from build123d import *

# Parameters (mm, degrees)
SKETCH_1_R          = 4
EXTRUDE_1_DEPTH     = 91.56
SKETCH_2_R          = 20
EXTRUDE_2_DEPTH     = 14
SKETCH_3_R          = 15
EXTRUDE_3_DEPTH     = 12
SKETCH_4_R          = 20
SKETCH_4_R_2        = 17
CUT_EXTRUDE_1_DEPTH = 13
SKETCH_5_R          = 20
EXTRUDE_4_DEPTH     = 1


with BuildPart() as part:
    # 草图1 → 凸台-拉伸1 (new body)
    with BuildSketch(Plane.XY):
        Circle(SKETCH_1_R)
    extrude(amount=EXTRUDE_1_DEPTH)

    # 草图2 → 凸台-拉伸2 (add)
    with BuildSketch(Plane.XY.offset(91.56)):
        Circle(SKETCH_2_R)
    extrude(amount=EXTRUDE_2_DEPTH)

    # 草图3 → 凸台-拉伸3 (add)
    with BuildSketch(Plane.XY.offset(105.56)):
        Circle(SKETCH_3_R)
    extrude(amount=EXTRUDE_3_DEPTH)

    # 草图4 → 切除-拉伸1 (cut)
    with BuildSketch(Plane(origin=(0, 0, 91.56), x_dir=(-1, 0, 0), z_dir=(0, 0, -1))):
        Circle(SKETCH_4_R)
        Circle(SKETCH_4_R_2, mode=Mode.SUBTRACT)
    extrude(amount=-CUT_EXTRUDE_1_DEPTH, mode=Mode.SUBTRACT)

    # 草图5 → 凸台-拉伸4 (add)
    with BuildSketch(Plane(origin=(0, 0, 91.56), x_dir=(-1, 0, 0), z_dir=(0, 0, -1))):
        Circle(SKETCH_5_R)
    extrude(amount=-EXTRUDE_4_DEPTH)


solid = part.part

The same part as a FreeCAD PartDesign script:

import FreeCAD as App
import Part
import Sketcher

V = App.Vector
Q = App.Units.Quantity

doc = App.newDocument("Part")
body = doc.addObject("PartDesign::Body", "Body")

sketch1 = body.newObject("Sketcher::SketchObject", "Sketch")
sketch1.AttachmentSupport = (doc.getObject("XY_Plane"), [""])
sketch1.MapMode = "FlatFace"
sketch1.addGeometry(Part.Circle(V(0, 0, 0), V(0, 0, 1), 4), False)
sketch1.addConstraint([
    Sketcher.Constraint("Coincident", 0, 3, -1, 1),
    Sketcher.Constraint("Diameter", 0, Q("8 mm")),
])
pad1 = body.newObject("PartDesign::Pad", "Pad")
pad1.Profile = sketch1
pad1.Length = 91.56

sketch2 = body.newObject("Sketcher::SketchObject", "Sketch001")
sketch2.AttachmentSupport = (doc.getObject("XY_Plane"), [""])
sketch2.MapMode = "FlatFace"
sketch2.AttachmentOffset = App.Placement(V(0, 0, 91.56), App.Rotation())
sketch2.addGeometry(Part.Circle(V(0, 0, 0), V(0, 0, 1), 20), False)
sketch2.addConstraint([
    Sketcher.Constraint("Coincident", 0, 3, -1, 1),
    Sketcher.Constraint("Diameter", 0, Q("40 mm")),
])
pad2 = body.newObject("PartDesign::Pad", "Pad001")
pad2.Profile = sketch2
pad2.Length = 14

sketch3 = body.newObject("Sketcher::SketchObject", "Sketch002")
sketch3.AttachmentSupport = (doc.getObject("XY_Plane"), [""])
sketch3.MapMode = "FlatFace"
sketch3.AttachmentOffset = App.Placement(V(0, 0, 105.56), App.Rotation())
sketch3.addGeometry(Part.Circle(V(0, 0, 0), V(0, 0, 1), 15), False)
sketch3.addConstraint([
    Sketcher.Constraint("Coincident", 0, 3, -1, 1),
    Sketcher.Constraint("Diameter", 0, Q("30 mm")),
])
pad3 = body.newObject("PartDesign::Pad", "Pad002")
pad3.Profile = sketch3
pad3.Length = 12

sketch4 = body.newObject("Sketcher::SketchObject", "Sketch003")
sketch4.AttachmentSupport = (doc.getObject("XY_Plane"), [""])
sketch4.MapMode = "FlatFace"
sketch4.AttachmentOffset = App.Placement(V(0, 0, 91.56), App.Rotation())
sketch4.addGeometry([
    Part.Circle(V(0, 0, 0), V(0, 0, 1), 20),
    Part.Circle(V(0, 0, 0), V(0, 0, 1), 17),
], False)
sketch4.addConstraint([
    Sketcher.Constraint("Coincident", 0, 3, -1, 1),
    Sketcher.Constraint("Coincident", 1, 3, -1, 1),
    Sketcher.Constraint("Diameter", 0, Q("40 mm")),
    Sketcher.Constraint("Diameter", 1, Q("34 mm")),
])
pocket1 = body.newObject("PartDesign::Pocket", "Pocket")
pocket1.Profile = sketch4
pocket1.Length = 13
pocket1.Reversed = True

sketch5 = body.newObject("Sketcher::SketchObject", "Sketch004")
sketch5.AttachmentSupport = (doc.getObject("XY_Plane"), [""])
sketch5.MapMode = "FlatFace"
sketch5.AttachmentOffset = App.Placement(V(0, 0, 91.56), App.Rotation())
sketch5.addGeometry(Part.Circle(V(0, 0, 0), V(0, 0, 1), 20), False)
sketch5.addConstraint([
    Sketcher.Constraint("Coincident", 0, 3, -1, 1),
    Sketcher.Constraint("Diameter", 0, Q("40 mm")),
])
pad4 = body.newObject("PartDesign::Pad", "Pad003")
pad4.Profile = sketch5
pad4.Length = 1

doc.recompute()
